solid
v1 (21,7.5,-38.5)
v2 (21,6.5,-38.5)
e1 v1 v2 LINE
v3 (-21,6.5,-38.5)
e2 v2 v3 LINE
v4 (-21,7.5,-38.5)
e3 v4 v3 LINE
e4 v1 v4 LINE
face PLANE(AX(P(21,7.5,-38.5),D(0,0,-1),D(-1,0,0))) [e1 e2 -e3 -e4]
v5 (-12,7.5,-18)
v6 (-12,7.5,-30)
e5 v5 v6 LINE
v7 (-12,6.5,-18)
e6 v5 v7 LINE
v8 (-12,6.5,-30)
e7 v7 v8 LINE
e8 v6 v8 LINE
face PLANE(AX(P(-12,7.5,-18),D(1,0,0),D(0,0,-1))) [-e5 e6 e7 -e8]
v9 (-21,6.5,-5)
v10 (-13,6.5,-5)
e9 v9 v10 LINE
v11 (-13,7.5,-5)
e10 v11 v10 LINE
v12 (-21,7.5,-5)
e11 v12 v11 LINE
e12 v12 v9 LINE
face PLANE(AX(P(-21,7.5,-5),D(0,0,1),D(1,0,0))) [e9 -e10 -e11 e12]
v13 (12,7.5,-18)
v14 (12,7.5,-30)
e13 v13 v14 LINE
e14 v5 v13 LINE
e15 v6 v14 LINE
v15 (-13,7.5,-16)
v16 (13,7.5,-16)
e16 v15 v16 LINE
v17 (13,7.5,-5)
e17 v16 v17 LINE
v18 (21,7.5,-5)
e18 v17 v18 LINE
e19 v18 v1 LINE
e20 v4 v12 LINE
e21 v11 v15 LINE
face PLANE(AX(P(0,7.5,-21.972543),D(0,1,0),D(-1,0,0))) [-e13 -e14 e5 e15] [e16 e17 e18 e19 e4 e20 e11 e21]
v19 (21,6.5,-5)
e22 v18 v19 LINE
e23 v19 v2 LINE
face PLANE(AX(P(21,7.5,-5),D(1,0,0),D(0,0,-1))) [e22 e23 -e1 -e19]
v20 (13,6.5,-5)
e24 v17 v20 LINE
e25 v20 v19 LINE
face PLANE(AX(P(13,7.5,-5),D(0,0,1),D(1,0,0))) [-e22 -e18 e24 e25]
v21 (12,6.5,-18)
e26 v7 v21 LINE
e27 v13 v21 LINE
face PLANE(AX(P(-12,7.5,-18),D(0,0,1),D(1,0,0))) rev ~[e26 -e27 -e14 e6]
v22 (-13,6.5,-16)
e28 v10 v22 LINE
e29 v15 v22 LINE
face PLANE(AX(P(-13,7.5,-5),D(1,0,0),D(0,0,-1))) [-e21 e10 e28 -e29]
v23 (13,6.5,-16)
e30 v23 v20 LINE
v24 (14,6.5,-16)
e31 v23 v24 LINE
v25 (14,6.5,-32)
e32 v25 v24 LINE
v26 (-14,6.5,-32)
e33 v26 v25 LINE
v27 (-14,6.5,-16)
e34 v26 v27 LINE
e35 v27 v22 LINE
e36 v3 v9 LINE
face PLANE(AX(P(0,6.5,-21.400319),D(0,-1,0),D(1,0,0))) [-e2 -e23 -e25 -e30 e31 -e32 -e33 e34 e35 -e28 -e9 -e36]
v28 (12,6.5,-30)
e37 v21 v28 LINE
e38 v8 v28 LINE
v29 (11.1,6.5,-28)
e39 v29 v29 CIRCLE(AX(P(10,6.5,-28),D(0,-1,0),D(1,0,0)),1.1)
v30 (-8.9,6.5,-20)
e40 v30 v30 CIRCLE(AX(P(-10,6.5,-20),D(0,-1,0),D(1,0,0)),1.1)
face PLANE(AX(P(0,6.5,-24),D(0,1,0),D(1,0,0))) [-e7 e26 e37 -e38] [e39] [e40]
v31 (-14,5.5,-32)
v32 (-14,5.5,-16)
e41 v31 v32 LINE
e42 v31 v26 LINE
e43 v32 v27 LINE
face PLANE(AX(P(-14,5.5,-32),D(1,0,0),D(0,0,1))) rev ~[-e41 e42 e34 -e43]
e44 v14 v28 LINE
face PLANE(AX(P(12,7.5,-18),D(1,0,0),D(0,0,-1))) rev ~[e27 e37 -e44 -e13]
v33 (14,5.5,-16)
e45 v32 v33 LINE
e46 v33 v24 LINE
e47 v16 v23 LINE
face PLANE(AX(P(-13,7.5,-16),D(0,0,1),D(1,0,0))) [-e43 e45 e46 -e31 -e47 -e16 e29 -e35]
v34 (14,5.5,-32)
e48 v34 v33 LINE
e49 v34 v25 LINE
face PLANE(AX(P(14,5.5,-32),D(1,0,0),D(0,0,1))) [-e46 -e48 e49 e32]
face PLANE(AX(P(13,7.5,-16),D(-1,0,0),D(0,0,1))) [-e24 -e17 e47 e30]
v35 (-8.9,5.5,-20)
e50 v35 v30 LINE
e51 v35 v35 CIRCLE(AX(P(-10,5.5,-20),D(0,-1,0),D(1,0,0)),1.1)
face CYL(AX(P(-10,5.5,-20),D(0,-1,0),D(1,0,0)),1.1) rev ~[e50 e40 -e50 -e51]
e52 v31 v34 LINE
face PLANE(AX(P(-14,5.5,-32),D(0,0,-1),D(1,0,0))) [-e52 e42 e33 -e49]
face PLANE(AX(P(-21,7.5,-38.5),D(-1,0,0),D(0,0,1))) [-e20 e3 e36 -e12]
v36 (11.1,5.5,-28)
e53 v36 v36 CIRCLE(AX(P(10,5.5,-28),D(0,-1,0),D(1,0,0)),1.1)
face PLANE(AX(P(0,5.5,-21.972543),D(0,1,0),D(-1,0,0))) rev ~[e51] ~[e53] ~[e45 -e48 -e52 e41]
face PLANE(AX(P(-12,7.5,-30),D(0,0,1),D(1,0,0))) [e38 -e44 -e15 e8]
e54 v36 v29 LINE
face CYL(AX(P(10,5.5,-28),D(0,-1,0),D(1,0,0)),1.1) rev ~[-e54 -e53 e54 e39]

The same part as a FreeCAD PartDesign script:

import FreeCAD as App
import Part
import Sketcher
from FreeCAD import Vector

doc = App.newDocument("Part")
body = doc.addObject("PartDesign::Body", "Body")

sketch1 = body.newObject("Sketcher::SketchObject", "Sketch")
sketch1.AttachmentSupport = (doc.getObject("XZ_Plane"), [""])
sketch1.MapMode = "FlatFace"
sketch1.addGeometry(Part.LineSegment(Vector(21, -38.5, 0), Vector(21, -5, 0)), False)
sketch1.addGeometry(Part.LineSegment(Vector(21, -5, 0), Vector(13, -5, 0)), False)
sketch1.addGeometry(Part.LineSegment(Vector(13, -5, 0), Vector(13, -16, 0)), False)
sketch1.addGeometry(Part.LineSegment(Vector(13, -16, 0), Vector(-13, -16, 0)), False)
sketch1.addGeometry(Part.LineSegment(Vector(-13, -16, 0), Vector(-13, -5, 0)), False)
sketch1.addGeometry(Part.LineSegment(Vector(-13, -5, 0), Vector(-21, -5, 0)), False)
sketch1.addGeometry(Part.LineSegment(Vector(-21, -5, 0), Vector(-21, -38.5, 0)), False)
sketch1.addGeometry(Part.LineSegment(Vector(-21, -38.5, 0), Vector(21, -38.5, 0)), False)
sketch1.addConstraint(Sketcher.Constraint("Coincident", 0, 2, 1, 1))
sketch1.addConstraint(Sketcher.Constraint("Coincident", 1, 2, 2, 1))
sketch1.addConstraint(Sketcher.Constraint("Coincident", 2, 2, 3, 1))
sketch1.addConstraint(Sketcher.Constraint("Coincident", 3, 2, 4, 1))
sketch1.addConstraint(Sketcher.Constraint("Coincident", 4, 2, 5, 1))
sketch1.addConstraint(Sketcher.Constraint("Coincident", 5, 2, 6, 1))
sketch1.addConstraint(Sketcher.Constraint("Coincident", 6, 2, 7, 1))
sketch1.addConstraint(Sketcher.Constraint("Coincident", 7, 2, 0, 1))
sketch1.addConstraint(Sketcher.Constraint("Vertical", 0))
sketch1.addConstraint(Sketcher.Constraint("Horizontal", 1))
sketch1.addConstraint(Sketcher.Constraint("Vertical", 2))
sketch1.addConstraint(Sketcher.Constraint("Horizontal", 3))
sketch1.addConstraint(Sketcher.Constraint("Vertical", 4))
sketch1.addConstraint(Sketcher.Constraint("Horizontal", 5))
sketch1.addConstraint(Sketcher.Constraint("Vertical", 6))
sketch1.addConstraint(Sketcher.Constraint("Horizontal", 7))
sketch1.addConstraint(Sketcher.Constraint("Symmetric", 1, 2, 4, 2, -2))
sketch1.addConstraint(Sketcher.Constraint("Equal", 1, 5))
sketch1.addConstraint(Sketcher.Constraint("DistanceX", 1, 2, 1, 1, 8.0))
sketch1.addConstraint(Sketcher.Constraint("DistanceX", 3, 2, 3, 1, 26.0))
sketch1.addConstraint(Sketcher.Constraint("DistanceY", 2, 2, 2, 1, 11.0))
sketch1.addConstraint(Sketcher.Constraint("DistanceY", 0, 1, 0, 2, 33.5))
sketch1.addConstraint(Sketcher.Constraint("DistanceY", 0, 2, -1, 1, 5.0))
pad1 = body.newObject("PartDesign::Pad", "Pad")
pad1.Profile = sketch1
pad1.Length = 2

sketch2 = body.newObject("Sketcher::SketchObject", "Sketch001")
sketch2.AttachmentSupport = (doc.getObject("XZ_Plane"), [""])
sketch2.MapMode = "FlatFace"
sketch2.addGeometry(Part.LineSegment(Vector(-12, -30, 0), Vector(-12, -18, 0)), False)
sketch2.addGeometry(Part.LineSegment(Vector(-12, -18, 0), Vector(12, -18, 0)), False)
sketch2.addGeometry(Part.LineSegment(Vector(12, -18, 0), Vector(12, -30, 0)), False)
sketch2.addGeometry(Part.LineSegment(Vector(12, -30, 0), Vector(-12, -30, 0)), False)
sketch2.addConstraint(Sketcher.Constraint("Coincident", 0, 2, 1, 1))
sketch2.addConstraint(Sketcher.Constraint("Coincident", 1, 2, 2, 1))
sketch2.addConstraint(Sketcher.Constraint("Coincident", 2, 2, 3, 1))
sketch2.addConstraint(Sketcher.Constraint("Coincident", 3, 2, 0, 1))
sketch2.addConstraint(Sketcher.Constraint("Vertical", 0))
sketch2.addConstraint(Sketcher.Constraint("Horizontal", 1))
sketch2.addConstraint(Sketcher.Constraint("Vertical", 2))
sketch2.addConstraint(Sketcher.Constraint("Horizontal", 3))
sketch2.addConstraint(Sketcher.Constraint("DistanceX", 1, 1, 1, 2, 24.0))
sketch2.addConstraint(Sketcher.Constraint("DistanceY", 0, 1, 0, 2, 12.0))
sketch2.addConstraint(Sketcher.Constraint("DistanceX", 0, 2, -1, 1, 12.0))
sketch2.addConstraint(Sketcher.Constraint("DistanceY", 0, 2, -1, 1, 18.0))
pocket1 = body.newObject("PartDesign::Pocket", "Pocket")
pocket1.Profile = sketch2
pocket1.Length = 1
pocket1.Reversed = True

sketch3 = body.newObject("Sketcher::SketchObject", "Sketch002")
sketch3.AttachmentSupport = (doc.getObject("XZ_Plane"), [""])
sketch3.MapMode = "FlatFace"
sketch3.AttachmentOffset = App.Placement(Vector(0, 0, 2), App.Rotation())
sketch3.addGeometry(Part.LineSegment(Vector(-23.118523, -2.809007, 0), Vector(-23.118523, -39.99163, 0)), False)
sketch3.addGeometry(Part.LineSegment(Vector(-23.118523, -39.99163, 0), Vector(23.118523, -39.99163, 0)), False)
sketch3.addGeometry(Part.LineSegment(Vector(23.118523, -39.99163, 0), Vector(23.118523, -2.809007, 0)), False)
sketch3.addGeometry(Part.LineSegment(Vector(23.118523, -2.809007, 0), Vector(-23.118523, -2.809007, 0)), False)
sketch3.addGeometry(Part.LineSegment(Vector(14, -32, 0), Vector(-14, -32, 0)), False)
sketch3.addGeometry(Part.LineSegment(Vector(-14, -32, 0), Vector(-14, -16, 0)), False)
sketch3.addGeometry(Part.LineSegment(Vector(-14, -16, 0), Vector(14, -16, 0)), False)
sketch3.addGeometry(Part.LineSegment(Vector(14, -16, 0), Vector(14, -32, 0)), False)
sketch3.addConstraint(Sketcher.Constraint("Coincident", 0, 2, 1, 1))
sketch3.addConstraint(Sketcher.Constraint("Coincident", 1, 2, 2, 1))
sketch3.addConstraint(Sketcher.Constraint("Coincident", 2, 2, 3, 1))
sketch3.addConstraint(Sketcher.Constraint("Coincident", 3, 2, 0, 1))
sketch3.addConstraint(Sketcher.Constraint("Coincident", 4, 2, 5, 1))
sketch3.addConstraint(Sketcher.Constraint("Coincident", 5, 2, 6, 1))
sketch3.addConstraint(Sketcher.Constraint("Coincident", 6, 2, 7, 1))
sketch3.addConstraint(Sketcher.Constraint("Coincident", 7, 2, 4, 1))
sketch3.addConstraint(Sketcher.Constraint("Vertical", 0))
sketch3.addConstraint(Sketcher.Constraint("Horizontal", 1))
sketch3.addConstraint(Sketcher.Constraint("Vertical", 2))
sketch3.addConstraint(Sketcher.Constraint("Horizontal", 3))
sketch3.addConstraint(Sketcher.Constraint("Horizontal", 4))
sketch3.addConstraint(Sketcher.Constraint("Vertical", 5))
sketch3.addConstraint(Sketcher.Constraint("Horizontal", 6))
sketch3.addConstraint(Sketcher.Constraint("Vertical", 7))
sketch3.addConstraint(Sketcher.Constraint("DistanceX", 4, 2, 4, 1, 28.0))
sketch3.addConstraint(Sketcher.Constraint("DistanceY", 5, 1, 5, 2, 16.0))
sketch3.addConstraint(Sketcher.Constraint("DistanceX", 4, 2, -1, 1, 14.0))
sketch3.addConstraint(Sketcher.Constraint("DistanceY", 4, 2, -1, 1, 32.0))
sketch3.addConstraint(Sketcher.Constraint("DistanceX", 1, 1, 1, 2, 46.237046))
sketch3.addConstraint(Sketcher.Constraint("DistanceY", 0, 2, 0, 1, 37.182623))
sketch3.addConstraint(Sketcher.Constraint("DistanceY", 0, 2, -1, 1, 39.99163))
sketch3.addConstraint(Sketcher.Constraint("DistanceX", 0, 2, -1, 1, 23.118523))
pocket2 = body.newObject("PartDesign::Pocket", "Pocket001")
pocket2.Profile = sketch3
pocket2.Length = 1

sketch4 = body.newObject("Sketcher::SketchObject", "Sketch003")
sketch4.AttachmentSupport = (doc.getObject("XZ_Plane"), [""])
sketch4.MapMode = "FlatFace"
sketch4.AttachmentOffset = App.Placement(Vector(0, 0, 2), App.Rotation())
sketch4.addGeometry(Part.Circle(Vector(10, -28, 0), Vector(0, 0, 1), 1.1), False)
sketch4.addGeometry(Part.Circle(Vector(-10, -20, 0), Vector(0, 0, 1), 1.1), False)
sketch4.addConstraint(Sketcher.Constraint("Equal", 0, 1))
sketch4.addConstraint(Sketcher.Constraint("Diameter", 0, 2.2))
sketch4.addConstraint(Sketcher.Constraint("DistanceX", -1, 1, 0, 3, 10.0))
sketch4.addConstraint(Sketcher.Constraint("DistanceY", 0, 3, -1, 1, 28.0))
sketch4.addConstraint(Sketcher.Constraint("DistanceX", 1, 3, -1, 1, 10.0))
sketch4.addConstraint(Sketcher.Constraint("DistanceY", 1, 3, -1, 1, 20.0))
pocket3 = body.newObject("PartDesign::Pocket", "Pocket002")
pocket3.Profile = sketch4
pocket3.Length = 5
body2 = doc.addObject("PartDesign::Body", "Body001")
doc.recompute()

body.Placement = App.Placement(Vector(0, 7.5, 0), App.Rotation(Vector(0, 0, 1), 0))
boolean = body2.newObject("PartDesign::Boolean", "Boolean")
boolean.Type = "Fuse"
boolean.addObjects([body])

doc.recompute()
